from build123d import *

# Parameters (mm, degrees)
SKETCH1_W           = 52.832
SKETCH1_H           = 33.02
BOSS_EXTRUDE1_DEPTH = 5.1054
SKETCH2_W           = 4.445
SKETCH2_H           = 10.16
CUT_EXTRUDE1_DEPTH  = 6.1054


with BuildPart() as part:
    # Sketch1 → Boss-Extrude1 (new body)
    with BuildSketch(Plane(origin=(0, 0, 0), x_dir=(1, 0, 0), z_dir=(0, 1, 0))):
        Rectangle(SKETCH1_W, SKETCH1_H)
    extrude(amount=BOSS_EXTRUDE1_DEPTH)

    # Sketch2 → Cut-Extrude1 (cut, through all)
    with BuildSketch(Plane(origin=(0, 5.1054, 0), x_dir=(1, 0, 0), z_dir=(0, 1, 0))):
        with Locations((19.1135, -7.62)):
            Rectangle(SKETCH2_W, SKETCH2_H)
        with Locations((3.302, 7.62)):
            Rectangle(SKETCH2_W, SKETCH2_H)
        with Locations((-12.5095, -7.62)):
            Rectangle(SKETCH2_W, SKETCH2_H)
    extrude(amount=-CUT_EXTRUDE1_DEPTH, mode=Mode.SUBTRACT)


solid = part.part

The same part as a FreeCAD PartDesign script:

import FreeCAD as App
import Part
import Sketcher

V = App.Vector
Q = App.Units.Quantity


def add_polygon(sketch, points):
    """Adds a closed chain of lines whose ends are joined by coincident constraints."""
    first, n = sketch.GeometryCount, len(points)
    for a, b in zip(points, points[1:] + points[:1]):
        sketch.addGeometry(Part.LineSegment(App.Vector(*a, 0), App.Vector(*b, 0)), False)
    for i in range(n):
        sketch.addConstraint(Sketcher.Constraint("Coincident", first + i, 2, first + (i + 1) % n, 1))

doc = App.newDocument("Part")
body = doc.addObject("PartDesign::Body", "Body")

sketch1 = body.newObject("Sketcher::SketchObject", "Sketch")
sketch1.AttachmentSupport = (doc.getObject("XZ_Plane"), [""])
sketch1.MapMode = "FlatFace"
add_polygon(sketch1, [(-26, -17), (-26, 17), (26, 17), (26, -17)])
sketch1.addConstraint(Sketcher.Constraint("Vertical", 0))
sketch1.addConstraint(Sketcher.Constraint("Horizontal", 1))
sketch1.addConstraint(Sketcher.Constraint("Vertical", 2))
sketch1.addConstraint(Sketcher.Constraint("Horizontal", 3))
sketch1.addConstraint(Sketcher.Constraint("Symmetric", 0, 2, 2, 2, -1, 1))
sketch1.addConstraint(Sketcher.Constraint("DistanceY", 0, 1, 0, 2, Q("1.3 in")))
sketch1.addConstraint(Sketcher.Constraint("DistanceX", 1, 1, 1, 2, Q("2.08 in")))
pad1 = body.newObject("PartDesign::Pad", "Pad")
pad1.Profile = sketch1
pad1.Length = Q("0.201 in")
pad1.Reversed = True

sketch2 = body.newObject("Sketcher::SketchObject", "Sketch001")
sketch2.AttachmentSupport = (doc.getObject("XZ_Plane"), [""])
sketch2.MapMode = "FlatFace"
sketch2.AttachmentOffset = App.Placement(V(0, 0, -0.201 * 25.4), App.Rotation())
add_polygon(sketch2, [(16.9, 2.5), (16.9, 12.7), (21.3, 12.7), (21.3, 2.5)])
add_polygon(sketch2, [(1.1, -12.7), (1.1, -2.5), (5.5, -2.5), (5.5, -12.7)])
add_polygon(sketch2, [(-14.7, 2.5), (-14.7, 12.7), (-10.3, 12.7), (-10.3, 2.5)])
sketch2.addConstraint(Sketcher.Constraint("Vertical", 0))
sketch2.addConstraint(Sketcher.Constraint("Horizontal", 1))
sketch2.addConstraint(Sketcher.Constraint("Vertical", 2))
sketch2.addConstraint(Sketcher.Constraint("Horizontal", 3))
sketch2.addConstraint(Sketcher.Constraint("Vertical", 4))
sketch2.addConstraint(Sketcher.Constraint("Horizontal", 5))
sketch2.addConstraint(Sketcher.Constraint("Vertical", 6))
sketch2.addConstraint(Sketcher.Constraint("Horizontal", 7))
sketch2.addConstraint(Sketcher.Constraint("Vertical", 8))
sketch2.addConstraint(Sketcher.Constraint("Horizontal", 9))
sketch2.addConstraint(Sketcher.Constraint("Vertical", 10))
sketch2.addConstraint(Sketcher.Constraint("Horizontal", 11))
sketch2.addConstraint(Sketcher.Constraint("Horizontal", 1, 2, 8, 2))
sketch2.addConstraint(Sketcher.Constraint("Horizontal", 3, 2, 10, 2))
sketch2.addConstraint(Sketcher.Constraint("Equal", 3, 5))
sketch2.addConstraint(Sketcher.Constraint("Equal", 7, 9))
sketch2.addConstraint(Sketcher.Constraint("Equal", 2, 4))
sketch2.addConstraint(Sketcher.Constraint("DistanceY", 0, 1, 0, 2, Q("0.4 in")))
sketch2.addConstraint(Sketcher.Constraint("DistanceY", 6, 2, 0, 2, Q("1 in")))
sketch2.addConstraint(Sketcher.Constraint("DistanceY", -1, 1, 0, 2, Q("0.5 in")))
sketch2.addConstraint(Sketcher.Constraint("DistanceX", 1, 1, 1, 2, Q("0.175 in")))
sketch2.addConstraint(Sketcher.Constraint("DistanceX", -1, 1, 1, 2, Q("0.84 in")))
sketch2.addConstraint(Sketcher.Constraint("DistanceX", 8, 2, -1, 1, Q("0.58 in")))
sketch2.addConstraint(Sketcher.Constraint("DistanceX", -1, 1, 4, 2, Q("0.0425 in")))
pocket1 = body.newObject("PartDesign::Pocket", "Pocket")
pocket1.Profile = sketch2
pocket1.Type = "ThroughAll"
pocket1.Reversed = True

doc.recompute()
